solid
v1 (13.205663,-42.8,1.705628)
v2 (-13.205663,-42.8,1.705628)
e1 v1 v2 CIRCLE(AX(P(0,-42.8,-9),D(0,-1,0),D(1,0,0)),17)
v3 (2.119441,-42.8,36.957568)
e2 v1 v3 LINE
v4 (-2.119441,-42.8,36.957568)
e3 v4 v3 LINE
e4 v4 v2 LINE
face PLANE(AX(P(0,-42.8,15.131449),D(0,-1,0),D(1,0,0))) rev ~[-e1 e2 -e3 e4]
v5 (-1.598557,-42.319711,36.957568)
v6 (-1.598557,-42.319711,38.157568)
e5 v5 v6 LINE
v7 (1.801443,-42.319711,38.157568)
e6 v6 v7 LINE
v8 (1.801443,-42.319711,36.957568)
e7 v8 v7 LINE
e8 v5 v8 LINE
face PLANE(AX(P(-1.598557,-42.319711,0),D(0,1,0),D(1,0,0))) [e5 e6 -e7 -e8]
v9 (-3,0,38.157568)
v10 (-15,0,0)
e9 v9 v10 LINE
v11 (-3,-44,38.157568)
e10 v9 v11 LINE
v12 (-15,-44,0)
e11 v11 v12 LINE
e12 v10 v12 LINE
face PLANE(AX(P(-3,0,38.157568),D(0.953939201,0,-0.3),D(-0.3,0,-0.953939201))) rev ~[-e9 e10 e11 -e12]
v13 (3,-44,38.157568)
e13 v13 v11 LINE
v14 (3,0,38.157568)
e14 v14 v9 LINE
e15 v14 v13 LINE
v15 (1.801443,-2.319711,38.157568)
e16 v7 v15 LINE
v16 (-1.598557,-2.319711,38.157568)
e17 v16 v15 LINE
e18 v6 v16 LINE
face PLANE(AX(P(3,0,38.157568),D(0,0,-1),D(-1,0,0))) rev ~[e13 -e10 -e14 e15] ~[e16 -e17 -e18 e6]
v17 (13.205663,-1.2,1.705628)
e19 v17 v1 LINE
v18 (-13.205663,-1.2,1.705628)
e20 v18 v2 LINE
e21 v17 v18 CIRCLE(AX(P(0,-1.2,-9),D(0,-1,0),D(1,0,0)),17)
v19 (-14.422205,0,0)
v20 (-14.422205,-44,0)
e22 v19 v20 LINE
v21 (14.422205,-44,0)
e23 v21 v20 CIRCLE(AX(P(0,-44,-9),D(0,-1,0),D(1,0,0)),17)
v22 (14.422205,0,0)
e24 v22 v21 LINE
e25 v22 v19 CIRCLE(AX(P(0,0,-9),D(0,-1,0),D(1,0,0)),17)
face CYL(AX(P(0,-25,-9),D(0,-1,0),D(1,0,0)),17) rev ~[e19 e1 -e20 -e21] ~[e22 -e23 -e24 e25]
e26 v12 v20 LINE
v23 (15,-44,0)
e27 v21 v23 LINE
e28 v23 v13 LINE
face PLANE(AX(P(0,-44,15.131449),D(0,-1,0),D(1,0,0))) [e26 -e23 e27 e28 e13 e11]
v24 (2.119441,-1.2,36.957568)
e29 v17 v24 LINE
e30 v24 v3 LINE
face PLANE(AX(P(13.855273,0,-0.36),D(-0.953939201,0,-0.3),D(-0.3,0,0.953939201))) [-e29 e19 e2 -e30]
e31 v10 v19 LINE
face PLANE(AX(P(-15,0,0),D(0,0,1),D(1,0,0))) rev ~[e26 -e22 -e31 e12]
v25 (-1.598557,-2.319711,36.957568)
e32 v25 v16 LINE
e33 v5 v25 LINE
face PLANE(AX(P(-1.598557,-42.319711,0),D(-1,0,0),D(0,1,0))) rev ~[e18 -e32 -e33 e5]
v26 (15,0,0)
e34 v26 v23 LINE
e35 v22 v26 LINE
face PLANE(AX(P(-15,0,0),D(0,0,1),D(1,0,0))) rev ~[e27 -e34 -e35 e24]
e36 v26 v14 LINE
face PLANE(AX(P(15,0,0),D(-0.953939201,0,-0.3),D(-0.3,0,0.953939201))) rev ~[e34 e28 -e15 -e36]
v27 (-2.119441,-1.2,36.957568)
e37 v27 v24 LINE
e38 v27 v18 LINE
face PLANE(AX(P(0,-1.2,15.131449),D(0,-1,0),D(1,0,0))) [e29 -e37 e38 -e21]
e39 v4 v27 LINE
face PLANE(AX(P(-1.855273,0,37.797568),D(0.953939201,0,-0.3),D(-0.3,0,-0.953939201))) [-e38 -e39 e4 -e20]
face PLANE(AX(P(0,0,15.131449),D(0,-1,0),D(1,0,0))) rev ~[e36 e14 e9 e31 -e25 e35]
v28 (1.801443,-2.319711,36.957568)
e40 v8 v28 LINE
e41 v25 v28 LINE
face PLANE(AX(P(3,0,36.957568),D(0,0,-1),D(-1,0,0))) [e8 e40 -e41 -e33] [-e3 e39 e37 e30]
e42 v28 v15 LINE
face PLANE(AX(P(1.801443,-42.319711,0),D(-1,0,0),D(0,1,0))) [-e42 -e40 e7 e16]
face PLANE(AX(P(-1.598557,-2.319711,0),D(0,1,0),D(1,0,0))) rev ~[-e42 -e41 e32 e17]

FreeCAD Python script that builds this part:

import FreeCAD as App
import Part
import Sketcher


def faces_at(feature, points):
    """Names of the faces that lie closest to the given points."""
    faces = feature.Shape.Faces
    near = lambda p: min(range(len(faces)), key=lambda i: faces[i].distToShape(Part.Vertex(*p))[0])
    return sorted({f"Face{near(p) + 1}" for p in points})


def add_polygon(sketch, points):
    """Adds a closed chain of lines whose ends are joined by coincident constraints."""
    first, n = sketch.GeometryCount, len(points)
    for a, b in zip(points, points[1:] + points[:1]):
        sketch.addGeometry(Part.LineSegment(App.Vector(*a, 0), App.Vector(*b, 0)), False)
    for i in range(n):
        sketch.addConstraint(Sketcher.Constraint("Coincident", first + i, 2, first + (i + 1) % n, 1))

doc = App.newDocument("Part")
body = doc.addObject("PartDesign::Body", "Body")

# Sketch on XZ plane
sketch1 = doc.addObject("Sketcher::SketchObject", "Sketch")
body.addObject(sketch1)
sketch1.AttachmentSupport = (doc.XZ_Plane, [""])
sketch1.MapMode = "FlatFace"
add_polygon(sketch1, [(-3, 38.157568), (-15, 0), (15, 0), (3, 38.157568)])  # lines 0-3
sketch1.addConstraint([
    Sketcher.Constraint("Horizontal", 1),
    Sketcher.Constraint("Horizontal", 3),
    Sketcher.Constraint("Symmetric", 0, 2, 1, 2, -1, 1),
    Sketcher.Constraint("Equal", 0, 2),
    Sketcher.Constraint("DistanceX", 1, 1, 1, 2, 30.0),
    Sketcher.Constraint("DistanceX", 3, 2, 3, 1, 6.0),
    Sketcher.Constraint("Distance", 0, 40.0),
])
pad1 = doc.addObject("PartDesign::Pad", "Pad")
body.addObject(pad1)
pad1.Profile = sketch1
pad1.Length = 44
doc.recompute()

thickness = doc.addObject("PartDesign::Thickness", "Thickness")
body.addObject(thickness)
thickness.Base = (pad1, faces_at(pad1, [(0, -22, 0)]))
thickness.Value = 1.2
thickness.Reversed = True
thickness.Join = "Arc"

# Sketch on XZ plane
sketch2 = doc.addObject("Sketcher::SketchObject", "Sketch001")
body.addObject(sketch2)
sketch2.AttachmentSupport = (doc.XZ_Plane, [""])
sketch2.MapMode = "FlatFace"
sketch2.AttachmentOffset = App.Placement(App.Vector(0, 0, 25), App.Rotation())
sketch2.addGeometry(Part.Circle(App.Vector(0, -9, 0), App.Vector(0, 0, 1), 17), False)
sketch2.addConstraint([
    Sketcher.Constraint("PointOnObject", 0, 3, -2),
    Sketcher.Constraint("Diameter", 0, 34.0),
    Sketcher.Constraint("DistanceY", 0, 3, -1, 1, 9.0),
])
pocket1 = doc.addObject("PartDesign::Pocket", "Pocket")
body.addObject(pocket1)
pocket1.Profile = sketch2
pocket1.Length = 50
pocket1.Midplane = True

# Sketch on XY plane
sketch3 = doc.addObject("Sketcher::SketchObject", "Sketch002")
body.addObject(sketch3)
sketch3.AttachmentSupport = (doc.XY_Plane, [""])
sketch3.MapMode = "FlatFace"
add_polygon(sketch3, [(-1.598557, -2.319711), (-1.598557, -42.319711), (1.801443, -42.319711), (1.801443, -2.319711)])  # lines 0-3
sketch3.addConstraint([
    Sketcher.Constraint("Vertical", 0),
    Sketcher.Constraint("Horizontal", 1),
    Sketcher.Constraint("Vertical", 2),
    Sketcher.Constraint("Horizontal", 3),
    Sketcher.Constraint("DistanceY", 0, 2, 0, 1, 40.0),
    Sketcher.Constraint("DistanceX", 1, 1, 1, 2, 3.4),
    Sketcher.Constraint("DistanceY", 0, 2, -1, 1, 42.319711),
    Sketcher.Constraint("DistanceX", 0, 2, -1, 1, 1.598557),
])
pocket2 = doc.addObject("PartDesign::Pocket", "Pocket001")
body.addObject(pocket2)
pocket2.Profile = sketch3
pocket2.Length = 50
pocket2.Reversed = True

doc.recompute()
